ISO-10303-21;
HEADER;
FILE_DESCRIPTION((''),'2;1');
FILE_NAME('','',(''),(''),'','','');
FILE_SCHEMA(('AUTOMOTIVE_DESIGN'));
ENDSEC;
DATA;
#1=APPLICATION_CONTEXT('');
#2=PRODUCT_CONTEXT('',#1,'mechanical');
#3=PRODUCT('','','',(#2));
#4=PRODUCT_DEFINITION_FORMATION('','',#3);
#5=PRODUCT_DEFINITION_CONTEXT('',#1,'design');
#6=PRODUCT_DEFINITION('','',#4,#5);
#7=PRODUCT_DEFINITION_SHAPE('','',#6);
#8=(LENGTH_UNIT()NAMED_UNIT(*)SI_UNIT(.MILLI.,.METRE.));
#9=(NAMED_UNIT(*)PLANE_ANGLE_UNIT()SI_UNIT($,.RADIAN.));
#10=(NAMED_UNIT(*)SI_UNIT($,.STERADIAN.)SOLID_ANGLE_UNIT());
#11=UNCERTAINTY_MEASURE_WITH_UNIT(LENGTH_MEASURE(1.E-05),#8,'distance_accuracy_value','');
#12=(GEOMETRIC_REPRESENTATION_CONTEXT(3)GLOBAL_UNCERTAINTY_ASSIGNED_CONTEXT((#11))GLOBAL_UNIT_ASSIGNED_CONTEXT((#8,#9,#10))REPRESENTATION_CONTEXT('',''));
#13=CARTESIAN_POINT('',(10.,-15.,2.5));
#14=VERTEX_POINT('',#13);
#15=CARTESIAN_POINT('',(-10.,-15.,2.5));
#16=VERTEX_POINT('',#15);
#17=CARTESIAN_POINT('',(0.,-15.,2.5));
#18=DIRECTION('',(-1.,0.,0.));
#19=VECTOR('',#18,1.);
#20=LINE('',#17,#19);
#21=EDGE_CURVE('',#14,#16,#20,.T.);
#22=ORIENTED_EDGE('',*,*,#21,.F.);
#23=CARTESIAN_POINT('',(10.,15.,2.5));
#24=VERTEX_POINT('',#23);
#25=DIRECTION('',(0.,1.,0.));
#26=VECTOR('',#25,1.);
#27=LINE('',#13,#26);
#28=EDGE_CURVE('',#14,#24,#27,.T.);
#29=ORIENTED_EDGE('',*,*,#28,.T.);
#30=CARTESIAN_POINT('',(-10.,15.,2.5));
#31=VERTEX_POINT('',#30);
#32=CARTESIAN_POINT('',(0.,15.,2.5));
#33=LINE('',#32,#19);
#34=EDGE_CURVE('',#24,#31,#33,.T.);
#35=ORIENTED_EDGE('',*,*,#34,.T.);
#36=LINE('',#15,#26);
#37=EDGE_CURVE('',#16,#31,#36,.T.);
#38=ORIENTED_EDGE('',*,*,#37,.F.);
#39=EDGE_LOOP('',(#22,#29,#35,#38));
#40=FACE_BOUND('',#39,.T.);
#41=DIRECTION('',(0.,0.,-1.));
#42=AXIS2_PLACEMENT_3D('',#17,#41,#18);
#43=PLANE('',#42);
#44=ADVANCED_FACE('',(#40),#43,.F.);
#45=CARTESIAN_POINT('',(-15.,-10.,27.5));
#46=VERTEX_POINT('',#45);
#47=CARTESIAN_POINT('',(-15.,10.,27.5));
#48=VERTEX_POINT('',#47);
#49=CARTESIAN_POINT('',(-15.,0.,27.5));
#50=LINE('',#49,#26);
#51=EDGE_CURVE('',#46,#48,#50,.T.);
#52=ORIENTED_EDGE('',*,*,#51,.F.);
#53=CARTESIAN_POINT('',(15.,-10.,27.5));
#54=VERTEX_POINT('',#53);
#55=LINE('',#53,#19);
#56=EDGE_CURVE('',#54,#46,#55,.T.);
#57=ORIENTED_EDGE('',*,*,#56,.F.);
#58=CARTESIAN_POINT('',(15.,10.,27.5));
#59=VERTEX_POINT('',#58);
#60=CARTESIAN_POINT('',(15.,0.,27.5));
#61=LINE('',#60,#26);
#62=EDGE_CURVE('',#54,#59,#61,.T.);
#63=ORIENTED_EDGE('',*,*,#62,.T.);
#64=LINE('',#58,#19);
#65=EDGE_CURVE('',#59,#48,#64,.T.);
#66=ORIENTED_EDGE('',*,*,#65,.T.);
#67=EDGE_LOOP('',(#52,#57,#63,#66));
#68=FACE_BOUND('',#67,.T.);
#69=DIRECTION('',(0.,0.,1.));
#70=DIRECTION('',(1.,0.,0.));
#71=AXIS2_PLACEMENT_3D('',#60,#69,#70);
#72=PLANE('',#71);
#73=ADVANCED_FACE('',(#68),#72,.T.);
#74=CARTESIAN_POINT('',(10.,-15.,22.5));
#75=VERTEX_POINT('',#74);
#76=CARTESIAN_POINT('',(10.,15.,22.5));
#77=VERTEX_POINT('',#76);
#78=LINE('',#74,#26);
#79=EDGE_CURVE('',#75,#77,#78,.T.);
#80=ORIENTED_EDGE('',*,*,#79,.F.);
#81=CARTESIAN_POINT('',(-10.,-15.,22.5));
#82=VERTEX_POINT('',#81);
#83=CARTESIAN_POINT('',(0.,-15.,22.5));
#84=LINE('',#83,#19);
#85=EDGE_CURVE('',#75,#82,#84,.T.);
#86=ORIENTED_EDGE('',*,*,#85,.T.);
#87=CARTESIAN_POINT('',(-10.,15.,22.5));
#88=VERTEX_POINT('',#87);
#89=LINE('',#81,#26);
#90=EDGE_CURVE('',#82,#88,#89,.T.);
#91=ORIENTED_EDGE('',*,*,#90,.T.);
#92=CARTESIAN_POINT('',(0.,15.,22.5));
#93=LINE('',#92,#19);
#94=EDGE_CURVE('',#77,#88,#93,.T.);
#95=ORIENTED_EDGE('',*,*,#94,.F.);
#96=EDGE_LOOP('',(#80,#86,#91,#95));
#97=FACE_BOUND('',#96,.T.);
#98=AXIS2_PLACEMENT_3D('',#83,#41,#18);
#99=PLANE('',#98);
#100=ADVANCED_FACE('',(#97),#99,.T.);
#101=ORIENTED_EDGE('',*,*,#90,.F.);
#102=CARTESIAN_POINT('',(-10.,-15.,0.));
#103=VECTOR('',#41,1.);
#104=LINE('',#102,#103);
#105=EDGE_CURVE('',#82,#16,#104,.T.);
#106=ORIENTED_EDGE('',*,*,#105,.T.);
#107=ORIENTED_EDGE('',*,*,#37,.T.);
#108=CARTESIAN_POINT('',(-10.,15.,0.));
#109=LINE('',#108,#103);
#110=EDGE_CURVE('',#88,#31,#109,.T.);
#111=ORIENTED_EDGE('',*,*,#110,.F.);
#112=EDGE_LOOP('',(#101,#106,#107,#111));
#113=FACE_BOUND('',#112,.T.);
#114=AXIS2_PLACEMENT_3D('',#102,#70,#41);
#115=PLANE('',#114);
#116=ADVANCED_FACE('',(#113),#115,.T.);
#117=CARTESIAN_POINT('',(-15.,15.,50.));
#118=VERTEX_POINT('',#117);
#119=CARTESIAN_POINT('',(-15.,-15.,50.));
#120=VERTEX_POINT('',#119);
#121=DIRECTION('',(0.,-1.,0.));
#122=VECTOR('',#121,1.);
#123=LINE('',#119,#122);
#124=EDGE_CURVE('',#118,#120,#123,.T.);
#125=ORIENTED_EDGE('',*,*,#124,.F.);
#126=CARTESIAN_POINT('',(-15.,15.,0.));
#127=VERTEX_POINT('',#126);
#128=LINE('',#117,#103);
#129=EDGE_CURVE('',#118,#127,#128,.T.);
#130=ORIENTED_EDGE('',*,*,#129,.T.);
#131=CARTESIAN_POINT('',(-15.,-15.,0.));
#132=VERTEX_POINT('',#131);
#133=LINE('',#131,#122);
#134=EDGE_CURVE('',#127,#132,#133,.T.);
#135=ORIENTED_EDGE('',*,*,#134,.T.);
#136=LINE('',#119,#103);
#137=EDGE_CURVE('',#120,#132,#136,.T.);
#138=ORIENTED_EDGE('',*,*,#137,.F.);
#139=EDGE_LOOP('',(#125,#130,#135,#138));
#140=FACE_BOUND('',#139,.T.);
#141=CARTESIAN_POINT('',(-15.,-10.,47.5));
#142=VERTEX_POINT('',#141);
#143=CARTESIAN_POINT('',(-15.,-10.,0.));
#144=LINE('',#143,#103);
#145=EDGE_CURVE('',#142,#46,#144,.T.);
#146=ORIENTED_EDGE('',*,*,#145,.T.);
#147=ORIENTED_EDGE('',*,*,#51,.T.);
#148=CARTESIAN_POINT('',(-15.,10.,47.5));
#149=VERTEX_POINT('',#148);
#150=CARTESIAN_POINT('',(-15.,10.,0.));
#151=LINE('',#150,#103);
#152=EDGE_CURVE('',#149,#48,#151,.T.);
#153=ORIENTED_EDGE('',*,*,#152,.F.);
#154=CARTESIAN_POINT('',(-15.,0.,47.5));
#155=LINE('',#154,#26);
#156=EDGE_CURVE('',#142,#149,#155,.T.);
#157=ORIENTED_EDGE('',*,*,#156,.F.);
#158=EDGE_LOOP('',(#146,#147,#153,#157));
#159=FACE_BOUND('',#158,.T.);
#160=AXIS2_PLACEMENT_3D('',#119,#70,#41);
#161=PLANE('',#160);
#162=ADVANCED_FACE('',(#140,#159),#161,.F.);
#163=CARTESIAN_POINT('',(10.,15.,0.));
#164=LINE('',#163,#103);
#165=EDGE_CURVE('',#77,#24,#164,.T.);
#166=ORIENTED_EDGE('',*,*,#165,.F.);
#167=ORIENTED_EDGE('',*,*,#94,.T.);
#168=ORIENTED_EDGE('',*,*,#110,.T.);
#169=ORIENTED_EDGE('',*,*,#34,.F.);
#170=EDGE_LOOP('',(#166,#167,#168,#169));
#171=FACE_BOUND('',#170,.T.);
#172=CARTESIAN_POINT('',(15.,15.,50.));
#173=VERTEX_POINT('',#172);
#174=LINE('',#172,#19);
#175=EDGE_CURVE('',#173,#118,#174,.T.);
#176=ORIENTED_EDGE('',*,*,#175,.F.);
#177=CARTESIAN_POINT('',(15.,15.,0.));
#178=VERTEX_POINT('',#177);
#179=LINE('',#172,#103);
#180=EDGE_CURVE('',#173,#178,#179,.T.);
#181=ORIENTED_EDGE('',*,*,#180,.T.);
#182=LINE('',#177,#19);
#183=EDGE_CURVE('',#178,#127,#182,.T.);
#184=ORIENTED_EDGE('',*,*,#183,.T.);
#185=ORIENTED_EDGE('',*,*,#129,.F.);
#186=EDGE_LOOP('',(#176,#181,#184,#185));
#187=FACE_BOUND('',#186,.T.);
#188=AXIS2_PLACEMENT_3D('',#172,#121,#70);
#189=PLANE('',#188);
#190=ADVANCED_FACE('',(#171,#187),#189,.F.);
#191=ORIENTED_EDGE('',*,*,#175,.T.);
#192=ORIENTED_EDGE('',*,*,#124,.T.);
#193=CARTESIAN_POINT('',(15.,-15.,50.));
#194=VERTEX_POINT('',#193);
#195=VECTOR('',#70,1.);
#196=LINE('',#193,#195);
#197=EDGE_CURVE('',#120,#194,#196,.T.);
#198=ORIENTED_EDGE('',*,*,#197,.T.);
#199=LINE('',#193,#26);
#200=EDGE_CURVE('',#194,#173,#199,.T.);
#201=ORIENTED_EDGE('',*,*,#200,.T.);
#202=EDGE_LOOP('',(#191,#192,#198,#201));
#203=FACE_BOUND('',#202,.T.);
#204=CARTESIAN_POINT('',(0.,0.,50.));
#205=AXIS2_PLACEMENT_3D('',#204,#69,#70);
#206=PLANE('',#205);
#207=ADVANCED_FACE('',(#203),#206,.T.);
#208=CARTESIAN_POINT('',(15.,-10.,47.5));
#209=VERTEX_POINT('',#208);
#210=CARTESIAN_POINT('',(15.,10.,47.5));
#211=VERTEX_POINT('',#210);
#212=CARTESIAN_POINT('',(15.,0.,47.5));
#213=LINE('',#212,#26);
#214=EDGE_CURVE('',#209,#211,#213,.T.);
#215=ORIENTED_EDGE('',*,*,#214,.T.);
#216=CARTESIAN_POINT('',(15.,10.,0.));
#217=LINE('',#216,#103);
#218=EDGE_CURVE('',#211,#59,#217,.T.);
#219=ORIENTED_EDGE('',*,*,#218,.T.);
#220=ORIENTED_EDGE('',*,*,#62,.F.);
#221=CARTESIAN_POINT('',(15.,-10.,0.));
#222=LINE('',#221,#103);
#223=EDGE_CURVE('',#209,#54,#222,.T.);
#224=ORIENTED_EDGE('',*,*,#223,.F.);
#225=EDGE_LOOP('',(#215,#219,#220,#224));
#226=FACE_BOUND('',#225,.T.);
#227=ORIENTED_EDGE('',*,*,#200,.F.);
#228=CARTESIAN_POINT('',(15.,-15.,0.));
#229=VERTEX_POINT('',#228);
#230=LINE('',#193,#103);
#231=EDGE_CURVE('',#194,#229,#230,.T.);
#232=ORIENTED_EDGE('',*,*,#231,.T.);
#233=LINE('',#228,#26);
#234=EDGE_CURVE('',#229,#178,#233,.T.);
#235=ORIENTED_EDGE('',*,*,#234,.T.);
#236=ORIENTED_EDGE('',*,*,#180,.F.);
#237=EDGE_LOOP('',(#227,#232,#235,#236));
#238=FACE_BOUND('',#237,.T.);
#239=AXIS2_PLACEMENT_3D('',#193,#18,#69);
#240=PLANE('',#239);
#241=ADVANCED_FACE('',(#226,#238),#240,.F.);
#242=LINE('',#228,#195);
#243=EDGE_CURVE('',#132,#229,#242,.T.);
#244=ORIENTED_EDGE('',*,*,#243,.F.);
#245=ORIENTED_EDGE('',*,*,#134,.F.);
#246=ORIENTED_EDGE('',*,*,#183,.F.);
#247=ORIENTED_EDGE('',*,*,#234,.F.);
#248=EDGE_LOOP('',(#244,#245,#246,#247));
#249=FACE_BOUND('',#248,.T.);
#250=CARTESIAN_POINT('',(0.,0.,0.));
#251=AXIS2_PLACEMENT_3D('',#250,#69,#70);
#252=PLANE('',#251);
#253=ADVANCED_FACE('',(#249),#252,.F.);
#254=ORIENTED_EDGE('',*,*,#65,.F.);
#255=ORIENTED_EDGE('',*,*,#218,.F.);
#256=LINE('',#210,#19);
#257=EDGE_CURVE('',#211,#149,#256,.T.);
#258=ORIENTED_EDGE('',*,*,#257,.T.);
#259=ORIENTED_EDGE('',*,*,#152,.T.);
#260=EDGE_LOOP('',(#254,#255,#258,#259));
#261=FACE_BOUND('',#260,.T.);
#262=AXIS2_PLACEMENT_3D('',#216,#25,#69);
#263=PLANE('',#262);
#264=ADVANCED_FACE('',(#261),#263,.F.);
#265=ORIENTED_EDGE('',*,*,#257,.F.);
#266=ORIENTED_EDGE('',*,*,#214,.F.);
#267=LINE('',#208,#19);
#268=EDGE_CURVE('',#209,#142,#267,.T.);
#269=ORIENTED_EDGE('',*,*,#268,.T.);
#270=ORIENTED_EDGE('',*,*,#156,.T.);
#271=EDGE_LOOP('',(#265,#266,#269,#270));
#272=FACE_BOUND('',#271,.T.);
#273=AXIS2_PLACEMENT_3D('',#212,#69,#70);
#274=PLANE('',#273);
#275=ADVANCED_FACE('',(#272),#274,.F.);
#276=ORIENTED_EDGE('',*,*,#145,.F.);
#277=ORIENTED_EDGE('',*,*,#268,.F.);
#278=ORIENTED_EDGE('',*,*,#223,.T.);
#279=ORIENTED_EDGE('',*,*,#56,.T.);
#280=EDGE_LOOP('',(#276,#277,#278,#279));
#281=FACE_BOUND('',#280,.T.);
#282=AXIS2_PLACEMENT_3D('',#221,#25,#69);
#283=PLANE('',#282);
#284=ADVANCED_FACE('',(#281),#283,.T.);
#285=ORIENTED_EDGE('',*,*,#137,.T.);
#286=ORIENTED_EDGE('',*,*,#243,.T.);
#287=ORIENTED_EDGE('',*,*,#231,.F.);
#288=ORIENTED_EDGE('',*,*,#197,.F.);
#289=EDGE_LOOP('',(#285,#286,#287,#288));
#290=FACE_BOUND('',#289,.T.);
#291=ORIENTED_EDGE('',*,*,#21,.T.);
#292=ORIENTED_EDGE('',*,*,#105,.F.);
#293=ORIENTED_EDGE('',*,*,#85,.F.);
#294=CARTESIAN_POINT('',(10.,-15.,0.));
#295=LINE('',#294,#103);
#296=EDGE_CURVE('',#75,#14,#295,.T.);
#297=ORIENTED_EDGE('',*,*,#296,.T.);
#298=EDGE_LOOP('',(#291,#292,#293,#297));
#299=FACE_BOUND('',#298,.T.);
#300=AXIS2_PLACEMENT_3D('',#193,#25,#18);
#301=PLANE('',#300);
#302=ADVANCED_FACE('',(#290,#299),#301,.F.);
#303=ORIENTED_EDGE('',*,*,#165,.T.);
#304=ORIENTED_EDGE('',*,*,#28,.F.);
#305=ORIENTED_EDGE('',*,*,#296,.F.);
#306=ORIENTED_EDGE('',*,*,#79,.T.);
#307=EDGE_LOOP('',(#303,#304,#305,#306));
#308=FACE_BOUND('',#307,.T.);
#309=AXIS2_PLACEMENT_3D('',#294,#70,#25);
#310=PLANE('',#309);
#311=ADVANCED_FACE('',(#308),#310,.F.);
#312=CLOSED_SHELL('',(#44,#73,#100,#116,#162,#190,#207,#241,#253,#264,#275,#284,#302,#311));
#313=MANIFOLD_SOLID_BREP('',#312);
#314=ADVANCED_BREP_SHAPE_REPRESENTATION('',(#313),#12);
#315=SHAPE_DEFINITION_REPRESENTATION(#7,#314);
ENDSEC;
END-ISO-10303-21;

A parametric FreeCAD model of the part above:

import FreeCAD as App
import Part
import Sketcher
Q = App.Units.Quantity

doc = App.newDocument("Part")
body = doc.addObject("PartDesign::Body", "Body")

sketch1 = body.newObject("Sketcher::SketchObject", "Sketch")
sketch1.AttachmentSupport = (doc.getObject("XY_Plane"), [""])
sketch1.MapMode = "FlatFace"
sketch1.addGeometry([
    Part.LineSegment(App.Vector(-15, 15, 0), App.Vector(-15, -15, 0)),
    Part.LineSegment(App.Vector(-15, -15, 0), App.Vector(15, -15, 0)),
    Part.LineSegment(App.Vector(15, -15, 0), App.Vector(15, 15, 0)),
    Part.LineSegment(App.Vector(15, 15, 0), App.Vector(-15, 15, 0)),
], False)
sketch1.addConstraint([
    Sketcher.Constraint("Coincident", 0, 2, 1, 1),
    Sketcher.Constraint("Coincident", 1, 2, 2, 1),
    Sketcher.Constraint("Coincident", 2, 2, 3, 1),
    Sketcher.Constraint("Coincident", 3, 2, 0, 1),
    Sketcher.Constraint("Vertical", 0),
    Sketcher.Constraint("Horizontal", 1),
    Sketcher.Constraint("Vertical", 2),
    Sketcher.Constraint("Horizontal", 3),
    Sketcher.Constraint("Symmetric", 0, 2, 2, 2, -1, 1),
    Sketcher.Constraint("Equal", 3, 0),
    Sketcher.Constraint("DistanceX", 1, 1, 1, 2, Q("30 mm")),
])
pad1 = body.newObject("PartDesign::Pad", "Pad")
pad1.Profile = sketch1
pad1.Length = 50

sketch2 = body.newObject("Sketcher::SketchObject", "Sketch001")
sketch2.AttachmentSupport = (doc.getObject("YZ_Plane"), [""])
sketch2.MapMode = "FlatFace"
sketch2.AttachmentOffset = App.Placement(App.Vector(0, 0, -15), App.Rotation())
sketch2.addGeometry([
    Part.LineSegment(App.Vector(10, 28, 0), App.Vector(-10, 28, 0)),
    Part.LineSegment(App.Vector(-10, 28, 0), App.Vector(-10, 48, 0)),
    Part.LineSegment(App.Vector(-10, 48, 0), App.Vector(10, 48, 0)),
    Part.LineSegment(App.Vector(10, 48, 0), App.Vector(10, 28, 0)),
], False)
sketch2.addConstraint([
    Sketcher.Constraint("Coincident", 0, 2, 1, 1),
    Sketcher.Constraint("Coincident", 1, 2, 2, 1),
    Sketcher.Constraint("Coincident", 2, 2, 3, 1),
    Sketcher.Constraint("Coincident", 3, 2, 0, 1),
    Sketcher.Constraint("Horizontal", 0),
    Sketcher.Constraint("Vertical", 1),
    Sketcher.Constraint("Horizontal", 2),
    Sketcher.Constraint("Vertical", 3),
    Sketcher.Constraint("Equal", 2, 1),
    Sketcher.Constraint("DistanceX", 0, 2, 0, 1, Q("20 mm")),
    Sketcher.Constraint("DistanceX", 0, 2, -1, 1, Q("10 mm")),
    Sketcher.Constraint("DistanceY", -1, 1, 0, 2, Q("27.5 mm")),
])
pocket1 = body.newObject("PartDesign::Pocket", "Pocket")
pocket1.Profile = sketch2
pocket1.Type = "ThroughAll"
pocket1.Reversed = True

sketch3 = body.newObject("Sketcher::SketchObject", "Sketch002")
sketch3.AttachmentSupport = (doc.getObject("XZ_Plane"), [""])
sketch3.MapMode = "FlatFace"
sketch3.AttachmentOffset = App.Placement(App.Vector(0, 0, -15), App.Rotation())
sketch3.addGeometry([
    Part.LineSegment(App.Vector(-10, 2, 0), App.Vector(-10, 22, 0)),
    Part.LineSegment(App.Vector(-10, 22, 0), App.Vector(10, 22, 0)),
    Part.LineSegment(App.Vector(10, 22, 0), App.Vector(10, 2, 0)),
    Part.LineSegment(App.Vector(10, 2, 0), App.Vector(-10, 2, 0)),
], False)
sketch3.addConstraint([
    Sketcher.Constraint("Coincident", 0, 2, 1, 1),
    Sketcher.Constraint("Coincident", 1, 2, 2, 1),
    Sketcher.Constraint("Coincident", 2, 2, 3, 1),
    Sketcher.Constraint("Coincident", 3, 2, 0, 1),
    Sketcher.Constraint("Vertical", 0),
    Sketcher.Constraint("Horizontal", 1),
    Sketcher.Constraint("Vertical", 2),
    Sketcher.Constraint("Horizontal", 3),
    Sketcher.Constraint("Equal", 3, 0),
    Sketcher.Constraint("DistanceX", 1, 1, 1, 2, Q("20 mm")),
    Sketcher.Constraint("DistanceX", 0, 2, -1, 1, Q("10 mm")),
    Sketcher.Constraint("DistanceY", -1, 1, 0, 2, Q("22.5 mm")),
])
pocket2 = body.newObject("PartDesign::Pocket", "Pocket001")
pocket2.Profile = sketch3
pocket2.Type = "ThroughAll"
pocket2.Reversed = True

doc.recompute()
